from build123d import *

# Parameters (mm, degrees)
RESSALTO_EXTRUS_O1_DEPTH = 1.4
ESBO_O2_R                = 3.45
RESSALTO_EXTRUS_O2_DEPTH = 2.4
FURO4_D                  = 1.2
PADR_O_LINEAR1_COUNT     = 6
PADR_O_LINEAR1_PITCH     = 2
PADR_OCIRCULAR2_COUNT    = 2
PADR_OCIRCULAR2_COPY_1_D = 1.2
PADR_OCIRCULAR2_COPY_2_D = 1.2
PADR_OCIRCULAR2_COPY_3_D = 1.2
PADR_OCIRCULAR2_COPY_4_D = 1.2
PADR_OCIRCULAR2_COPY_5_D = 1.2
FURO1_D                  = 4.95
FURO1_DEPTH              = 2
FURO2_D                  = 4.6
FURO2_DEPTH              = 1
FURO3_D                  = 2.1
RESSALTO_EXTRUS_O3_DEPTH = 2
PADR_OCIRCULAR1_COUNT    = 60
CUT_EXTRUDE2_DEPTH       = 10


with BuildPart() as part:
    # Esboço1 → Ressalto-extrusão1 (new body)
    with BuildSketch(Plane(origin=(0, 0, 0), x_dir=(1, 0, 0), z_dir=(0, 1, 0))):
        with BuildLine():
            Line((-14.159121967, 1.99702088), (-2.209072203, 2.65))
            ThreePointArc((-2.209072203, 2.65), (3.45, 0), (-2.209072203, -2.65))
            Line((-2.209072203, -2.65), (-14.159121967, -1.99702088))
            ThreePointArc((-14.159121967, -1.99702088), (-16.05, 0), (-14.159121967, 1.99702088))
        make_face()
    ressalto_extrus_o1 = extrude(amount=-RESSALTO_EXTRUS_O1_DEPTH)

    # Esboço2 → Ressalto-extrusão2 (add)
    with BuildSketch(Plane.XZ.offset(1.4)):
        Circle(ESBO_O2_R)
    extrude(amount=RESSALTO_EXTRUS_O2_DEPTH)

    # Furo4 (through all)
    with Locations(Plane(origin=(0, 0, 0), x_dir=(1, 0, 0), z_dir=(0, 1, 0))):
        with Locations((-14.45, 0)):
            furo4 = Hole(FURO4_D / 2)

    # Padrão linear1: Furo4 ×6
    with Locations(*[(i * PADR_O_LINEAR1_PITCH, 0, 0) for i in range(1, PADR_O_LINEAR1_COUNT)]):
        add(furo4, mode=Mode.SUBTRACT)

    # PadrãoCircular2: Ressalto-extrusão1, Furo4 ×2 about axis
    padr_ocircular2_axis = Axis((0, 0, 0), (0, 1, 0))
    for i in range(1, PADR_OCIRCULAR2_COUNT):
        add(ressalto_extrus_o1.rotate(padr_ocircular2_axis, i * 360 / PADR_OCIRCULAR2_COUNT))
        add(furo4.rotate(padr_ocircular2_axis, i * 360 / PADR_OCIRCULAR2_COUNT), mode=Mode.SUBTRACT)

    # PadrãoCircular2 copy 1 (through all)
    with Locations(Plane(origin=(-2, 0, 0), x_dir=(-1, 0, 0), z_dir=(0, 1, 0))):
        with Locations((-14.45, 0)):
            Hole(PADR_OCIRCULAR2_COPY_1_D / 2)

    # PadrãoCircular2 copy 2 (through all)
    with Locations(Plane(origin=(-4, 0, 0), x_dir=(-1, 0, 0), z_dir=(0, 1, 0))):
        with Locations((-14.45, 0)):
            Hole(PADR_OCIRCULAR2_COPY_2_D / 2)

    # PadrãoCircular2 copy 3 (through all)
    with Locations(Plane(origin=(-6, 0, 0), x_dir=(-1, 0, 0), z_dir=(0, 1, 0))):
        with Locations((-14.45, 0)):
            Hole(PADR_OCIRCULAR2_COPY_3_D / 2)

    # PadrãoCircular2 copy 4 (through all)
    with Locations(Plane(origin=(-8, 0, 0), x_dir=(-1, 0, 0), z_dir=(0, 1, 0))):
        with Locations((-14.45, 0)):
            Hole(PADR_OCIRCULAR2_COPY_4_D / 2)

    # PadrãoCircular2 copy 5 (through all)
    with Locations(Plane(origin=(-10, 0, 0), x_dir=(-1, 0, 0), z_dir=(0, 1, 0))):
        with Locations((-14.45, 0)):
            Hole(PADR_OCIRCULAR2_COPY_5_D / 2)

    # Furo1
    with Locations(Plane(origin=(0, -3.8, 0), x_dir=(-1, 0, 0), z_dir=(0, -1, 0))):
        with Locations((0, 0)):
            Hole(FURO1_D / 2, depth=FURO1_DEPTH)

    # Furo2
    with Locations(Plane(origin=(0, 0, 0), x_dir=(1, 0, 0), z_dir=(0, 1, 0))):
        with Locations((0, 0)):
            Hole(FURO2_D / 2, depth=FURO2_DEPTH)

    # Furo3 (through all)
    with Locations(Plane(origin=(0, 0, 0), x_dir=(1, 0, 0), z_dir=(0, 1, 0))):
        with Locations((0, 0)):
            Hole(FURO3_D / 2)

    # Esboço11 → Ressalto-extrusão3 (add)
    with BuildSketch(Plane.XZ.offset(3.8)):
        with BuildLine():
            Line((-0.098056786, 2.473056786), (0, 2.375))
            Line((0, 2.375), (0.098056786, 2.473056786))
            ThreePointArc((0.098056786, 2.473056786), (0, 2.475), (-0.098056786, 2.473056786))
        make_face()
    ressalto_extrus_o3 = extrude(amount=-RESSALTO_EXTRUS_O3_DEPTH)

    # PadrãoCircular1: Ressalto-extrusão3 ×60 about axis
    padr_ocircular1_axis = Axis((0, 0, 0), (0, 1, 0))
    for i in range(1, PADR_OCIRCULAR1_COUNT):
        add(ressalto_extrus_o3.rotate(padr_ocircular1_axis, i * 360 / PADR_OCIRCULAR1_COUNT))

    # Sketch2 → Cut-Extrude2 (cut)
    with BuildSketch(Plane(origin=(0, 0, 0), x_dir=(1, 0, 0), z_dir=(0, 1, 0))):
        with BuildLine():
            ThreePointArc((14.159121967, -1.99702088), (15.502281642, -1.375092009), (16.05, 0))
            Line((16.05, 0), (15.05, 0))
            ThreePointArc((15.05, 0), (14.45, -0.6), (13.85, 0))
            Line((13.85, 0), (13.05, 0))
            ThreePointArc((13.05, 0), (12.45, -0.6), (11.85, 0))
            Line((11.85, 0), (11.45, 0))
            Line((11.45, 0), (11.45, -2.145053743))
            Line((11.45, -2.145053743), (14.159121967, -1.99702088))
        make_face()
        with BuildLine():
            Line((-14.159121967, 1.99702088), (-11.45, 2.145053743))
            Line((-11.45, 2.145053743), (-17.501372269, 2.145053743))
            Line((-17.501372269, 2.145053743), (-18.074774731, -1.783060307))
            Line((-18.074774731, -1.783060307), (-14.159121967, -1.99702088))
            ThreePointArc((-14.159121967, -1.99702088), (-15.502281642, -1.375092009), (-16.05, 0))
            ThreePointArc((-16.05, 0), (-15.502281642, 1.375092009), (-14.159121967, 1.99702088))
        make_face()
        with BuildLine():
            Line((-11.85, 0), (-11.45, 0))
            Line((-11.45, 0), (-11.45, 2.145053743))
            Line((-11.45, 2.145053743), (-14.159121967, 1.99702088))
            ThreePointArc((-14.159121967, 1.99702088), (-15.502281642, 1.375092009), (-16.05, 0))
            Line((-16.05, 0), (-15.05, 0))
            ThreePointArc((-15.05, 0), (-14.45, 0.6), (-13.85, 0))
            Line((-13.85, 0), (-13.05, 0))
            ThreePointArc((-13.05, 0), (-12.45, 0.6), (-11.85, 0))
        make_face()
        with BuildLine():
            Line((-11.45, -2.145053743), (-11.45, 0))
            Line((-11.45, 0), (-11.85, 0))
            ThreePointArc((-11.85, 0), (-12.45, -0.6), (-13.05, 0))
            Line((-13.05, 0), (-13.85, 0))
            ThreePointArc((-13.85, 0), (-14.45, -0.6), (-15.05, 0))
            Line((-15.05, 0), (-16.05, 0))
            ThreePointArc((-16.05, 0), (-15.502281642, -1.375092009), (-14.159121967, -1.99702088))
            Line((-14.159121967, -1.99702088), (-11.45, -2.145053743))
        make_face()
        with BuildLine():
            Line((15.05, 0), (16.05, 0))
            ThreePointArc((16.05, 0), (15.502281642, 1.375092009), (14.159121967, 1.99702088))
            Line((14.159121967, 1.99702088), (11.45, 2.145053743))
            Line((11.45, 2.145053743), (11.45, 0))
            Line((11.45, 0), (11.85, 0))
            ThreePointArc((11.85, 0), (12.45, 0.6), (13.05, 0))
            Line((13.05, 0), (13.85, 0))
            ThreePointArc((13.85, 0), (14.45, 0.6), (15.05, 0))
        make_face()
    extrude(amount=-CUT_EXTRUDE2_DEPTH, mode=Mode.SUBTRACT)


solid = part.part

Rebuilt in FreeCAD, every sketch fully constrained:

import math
import FreeCAD as App
import Part
import Sketcher
from FreeCAD import Vector


def add_polygon(sketch, points):
    """Adds a closed chain of lines whose ends are joined by coincident constraints."""
    first, n = sketch.GeometryCount, len(points)
    for a, b in zip(points, points[1:] + points[:1]):
        sketch.addGeometry(Part.LineSegment(App.Vector(*a, 0), App.Vector(*b, 0)), False)
    for i in range(n):
        sketch.addConstraint(Sketcher.Constraint("Coincident", first + i, 2, first + (i + 1) % n, 1))

doc = App.newDocument("Part")
body = doc.addObject("PartDesign::Body", "Body")

sketch1 = body.newObject("Sketcher::SketchObject", "Sketch")
sketch1.AttachmentSupport = (doc.getObject("XZ_Plane"), [""])
sketch1.MapMode = "FlatFace"
sketch1.addGeometry([
    Part.LineSegment(Vector(-2.209072, -2.65, 0), Vector(-14.159122, -1.997021, 0)),
    Part.ArcOfCircle(Part.Circle(Vector(-14.05, 0, 0), Vector(0, 0, 1), 2), math.radians(93.127667), math.radians(266.872333)),
    Part.LineSegment(Vector(-14.159122, 1.997021, 0), Vector(-2.209072, 2.65, 0)),
    Part.ArcOfCircle(Part.Circle(Vector(0, 0, 0), Vector(0, 0, 1), 3.45), math.radians(-129.814998), math.radians(129.814998)),
], False)
sketch1.addConstraint([
    Sketcher.Constraint("Tangent", 0, 2, 1, 2),
    Sketcher.Constraint("Tangent", 1, 1, 2, 1),
    Sketcher.Constraint("Coincident", 2, 2, 3, 2),
    Sketcher.Constraint("Coincident", 3, 1, 0, 1),
    Sketcher.Constraint("Coincident", 3, 3, -1, 1),
    Sketcher.Constraint("Symmetric", 0, 2, 1, 1, -1),
    Sketcher.Constraint("Radius", 1, 2.0),
    Sketcher.Constraint("Radius", 3, 3.45),
    Sketcher.Constraint("DistanceY", 3, 1, 2, 2, 5.3),
    Sketcher.Constraint("DistanceX", 1, 3, -1, 1, 14.05),
])
pad1 = body.newObject("PartDesign::Pad", "Pad")
pad1.Profile = sketch1
pad1.Length = 1.4

sketch2 = body.newObject("Sketcher::SketchObject", "Sketch001")
sketch2.AttachmentSupport = (doc.getObject("XZ_Plane"), [""])
sketch2.MapMode = "FlatFace"
sketch2.AttachmentOffset = App.Placement(Vector(0, 0, 1.4), App.Rotation())
sketch2.addGeometry(Part.Circle(Vector(0, 0, 0), Vector(0, 0, 1), 3.45), False)
sketch2.addConstraint([
    Sketcher.Constraint("Coincident", 0, 3, -1, 1),
    Sketcher.Constraint("Diameter", 0, 6.9),
])
pad2 = body.newObject("PartDesign::Pad", "Pad001")
pad2.Profile = sketch2
pad2.Length = 2.4

sketch3 = body.newObject("Sketcher::SketchObject", "Sketch002")
sketch3.AttachmentSupport = (doc.getObject("XZ_Plane"), [""])
sketch3.MapMode = "FlatFace"
sketch3.addGeometry(Part.Circle(Vector(-14.45, 0, 0), Vector(0, 0, 1), 0.6), False)
sketch3.addConstraint([
    Sketcher.Constraint("PointOnObject", 0, 3, -1),
    Sketcher.Constraint("Diameter", 0, 1.2),
    Sketcher.Constraint("DistanceX", 0, 3, -1, 1, 14.45),
])
doc.recompute()
hole = body.newObject("PartDesign::Hole", "Hole")
hole.Profile = sketch3
hole.ThreadType = "None"
hole.Diameter = 1.2
hole.DepthType = "ThroughAll"
hole.Reversed = True
doc.recompute()

linearpattern = body.newObject("PartDesign::LinearPattern", "LinearPattern")
linearpattern.Originals = [hole]
linearpattern.Direction = (doc.getObject("X_Axis"), [""])
linearpattern.Mode = "offset"
linearpattern.Offset = 2
linearpattern.Occurrences = 6
body.Tip = linearpattern
doc.recompute()

polarpattern = body.newObject("PartDesign::PolarPattern", "PolarPattern")
polarpattern.Originals = [pad1, hole]
polarpattern.Axis = (doc.getObject("Y_Axis"), [""])
polarpattern.Angle = 360
polarpattern.Occurrences = 2
body.Tip = polarpattern

sketch4 = body.newObject("Sketcher::SketchObject", "Sketch003")
sketch4.AttachmentSupport = (doc.getObject("XZ_Plane"), [""])
sketch4.MapMode = "FlatFace"
sketch4.addGeometry(Part.Circle(Vector(12.45, 0, 0), Vector(0, 0, 1), 0.6), False)
sketch4.addConstraint([
    Sketcher.Constraint("PointOnObject", 0, 3, -1),
    Sketcher.Constraint("Diameter", 0, 1.2),
    Sketcher.Constraint("DistanceX", -1, 1, 0, 3, 12.45),
])
doc.recompute()
hole2 = body.newObject("PartDesign::Hole", "Hole001")
hole2.Profile = sketch4
hole2.ThreadType = "None"
hole2.Diameter = 1.2
hole2.DepthType = "ThroughAll"
hole2.Reversed = True

sketch5 = body.newObject("Sketcher::SketchObject", "Sketch004")
sketch5.AttachmentSupport = (doc.getObject("XZ_Plane"), [""])
sketch5.MapMode = "FlatFace"
sketch5.addGeometry(Part.Circle(Vector(10.45, 0, 0), Vector(0, 0, 1), 0.6), False)
sketch5.addConstraint([
    Sketcher.Constraint("PointOnObject", 0, 3, -1),
    Sketcher.Constraint("Diameter", 0, 1.2),
    Sketcher.Constraint("DistanceX", -1, 1, 0, 3, 10.45),
])
doc.recompute()
hole3 = body.newObject("PartDesign::Hole", "Hole002")
hole3.Profile = sketch5
hole3.ThreadType = "None"
hole3.Diameter = 1.2
hole3.DepthType = "ThroughAll"
hole3.Reversed = True

sketch6 = body.newObject("Sketcher::SketchObject", "Sketch005")
sketch6.AttachmentSupport = (doc.getObject("XZ_Plane"), [""])
sketch6.MapMode = "FlatFace"
sketch6.addGeometry(Part.Circle(Vector(8.45, 0, 0), Vector(0, 0, 1), 0.6), False)
sketch6.addConstraint([
    Sketcher.Constraint("PointOnObject", 0, 3, -1),
    Sketcher.Constraint("Diameter", 0, 1.2),
    Sketcher.Constraint("DistanceX", -1, 1, 0, 3, 8.45),
])
doc.recompute()
hole4 = body.newObject("PartDesign::Hole", "Hole003")
hole4.Profile = sketch6
hole4.ThreadType = "None"
hole4.Diameter = 1.2
hole4.DepthType = "ThroughAll"
hole4.Reversed = True

sketch7 = body.newObject("Sketcher::SketchObject", "Sketch006")
sketch7.AttachmentSupport = (doc.getObject("XZ_Plane"), [""])
sketch7.MapMode = "FlatFace"
sketch7.addGeometry(Part.Circle(Vector(6.45, 0, 0), Vector(0, 0, 1), 0.6), False)
sketch7.addConstraint([
    Sketcher.Constraint("PointOnObject", 0, 3, -1),
    Sketcher.Constraint("Diameter", 0, 1.2),
    Sketcher.Constraint("DistanceX", -1, 1, 0, 3, 6.45),
])
doc.recompute()
hole5 = body.newObject("PartDesign::Hole", "Hole004")
hole5.Profile = sketch7
hole5.ThreadType = "None"
hole5.Diameter = 1.2
hole5.DepthType = "ThroughAll"
hole5.Reversed = True

sketch8 = body.newObject("Sketcher::SketchObject", "Sketch007")
sketch8.AttachmentSupport = (doc.getObject("XZ_Plane"), [""])
sketch8.MapMode = "FlatFace"
sketch8.addGeometry(Part.Circle(Vector(4.45, 0, 0), Vector(0, 0, 1), 0.6), False)
sketch8.addConstraint([
    Sketcher.Constraint("PointOnObject", 0, 3, -1),
    Sketcher.Constraint("Diameter", 0, 1.2),
    Sketcher.Constraint("DistanceX", -1, 1, 0, 3, 4.45),
])
doc.recompute()
hole6 = body.newObject("PartDesign::Hole", "Hole005")
hole6.Profile = sketch8
hole6.ThreadType = "None"
hole6.Diameter = 1.2
hole6.DepthType = "ThroughAll"
hole6.Reversed = True

sketch9 = body.newObject("Sketcher::SketchObject", "Sketch008")
sketch9.AttachmentSupport = (doc.getObject("XZ_Plane"), [""])
sketch9.MapMode = "FlatFace"
sketch9.AttachmentOffset = App.Placement(Vector(0, 0, 3.8), App.Rotation())
sketch9.addGeometry(Part.Circle(Vector(0, 0, 0), Vector(0, 0, 1), 2.475), False)
sketch9.addConstraint([
    Sketcher.Constraint("Coincident", 0, 3, -1, 1),
    Sketcher.Constraint("Diameter", 0, 4.95),
])
doc.recompute()
hole7 = body.newObject("PartDesign::Hole", "Hole006")
hole7.Profile = sketch9
hole7.ThreadType = "None"
hole7.Diameter = 4.95
hole7.DepthType = "Dimension"
hole7.Depth = 2
hole7.DrillPoint = "Flat"

sketch10 = body.newObject("Sketcher::SketchObject", "Sketch009")
sketch10.AttachmentSupport = (doc.getObject("XZ_Plane"), [""])
sketch10.MapMode = "FlatFace"
sketch10.addGeometry(Part.Circle(Vector(0, 0, 0), Vector(0, 0, 1), 2.3), False)
sketch10.addConstraint([
    Sketcher.Constraint("Coincident", 0, 3, -1, 1),
    Sketcher.Constraint("Diameter", 0, 4.6),
])
doc.recompute()
hole8 = body.newObject("PartDesign::Hole", "Hole007")
hole8.Profile = sketch10
hole8.ThreadType = "None"
hole8.Diameter = 4.6
hole8.DepthType = "Dimension"
hole8.Depth = 1
hole8.DrillPoint = "Flat"
hole8.Reversed = True

sketch11 = body.newObject("Sketcher::SketchObject", "Sketch010")
sketch11.AttachmentSupport = (doc.getObject("XZ_Plane"), [""])
sketch11.MapMode = "FlatFace"
sketch11.addGeometry(Part.Circle(Vector(0, 0, 0), Vector(0, 0, 1), 1.05), False)
sketch11.addConstraint([
    Sketcher.Constraint("Coincident", 0, 3, -1, 1),
    Sketcher.Constraint("Diameter", 0, 2.1),
])
doc.recompute()
hole9 = body.newObject("PartDesign::Hole", "Hole008")
hole9.Profile = sketch11
hole9.ThreadType = "None"
hole9.Diameter = 2.1
hole9.DepthType = "ThroughAll"
hole9.Reversed = True

sketch12 = body.newObject("Sketcher::SketchObject", "Sketch011")
sketch12.AttachmentSupport = (doc.getObject("XZ_Plane"), [""])
sketch12.MapMode = "FlatFace"
sketch12.AttachmentOffset = App.Placement(Vector(0, 0, 3.8), App.Rotation())
sketch12.addGeometry([
    Part.LineSegment(Vector(-0.098057, 2.473057, 0), Vector(0, 2.375, 0)),
    Part.LineSegment(Vector(0, 2.375, 0), Vector(0.098057, 2.473057, 0)),
    Part.ArcOfCircle(Part.Circle(Vector(0, 0, 0), Vector(0, 0, 1), 2.475), math.radians(87.72941), math.radians(92.27059)),
], False)
sketch12.addConstraint([
    Sketcher.Constraint("Coincident", 0, 2, 1, 1),
    Sketcher.Constraint("Coincident", 1, 2, 2, 1),
    Sketcher.Constraint("Coincident", 2, 2, 0, 1),
    Sketcher.Constraint("Coincident", 2, 3, -1, 1),
    Sketcher.Constraint("PointOnObject", 0, 2, -2),
    Sketcher.Constraint("Perpendicular", 0, 1),
    Sketcher.Constraint("Horizontal", 1, 2, 2, 2),
    Sketcher.Constraint("Radius", 2, 2.475),
    Sketcher.Constraint("DistanceY", -1, 1, 0, 2, 2.375),
])
pad3 = body.newObject("PartDesign::Pad", "Pad002")
pad3.Profile = sketch12
pad3.Length = 2
pad3.Reversed = True
doc.recompute()

polarpattern2 = body.newObject("PartDesign::PolarPattern", "PolarPattern001")
polarpattern2.Originals = [pad3]
polarpattern2.Axis = (doc.getObject("Y_Axis"), [""])
polarpattern2.Angle = 360
polarpattern2.Occurrences = 60
body.Tip = polarpattern2

sketch13 = body.newObject("Sketcher::SketchObject", "Sketch012")
sketch13.AttachmentSupport = (doc.getObject("XZ_Plane"), [""])
sketch13.MapMode = "FlatFace"
sketch13.addGeometry(Part.ArcOfCircle(Part.Circle(Vector(14.05, 0, 0), Vector(0, 0, 1), 2), math.radians(0), math.radians(86.872333)), False)
sketch13.addGeometry(Part.ArcOfCircle(Part.Circle(Vector(14.05, 0, 0), Vector(0, 0, 1), 2), math.radians(-86.872333), math.radians(0)), False)
sketch13.addGeometry(Part.LineSegment(Vector(14.159122, -1.997021, 0), Vector(11.45, -2.145054, 0)), False)
sketch13.addGeometry(Part.LineSegment(Vector(11.45, -2.145054, 0), Vector(11.45, 2.145054, 0)), False)
sketch13.addGeometry(Part.LineSegment(Vector(11.45, 2.145054, 0), Vector(14.159122, 1.997021, 0)), False)
sketch13.addGeometry(Part.Circle(Vector(14.45, 0, 0), Vector(0, 0, 1), 0.6), False)
sketch13.addGeometry(Part.Circle(Vector(12.45, 0, 0), Vector(0, 0, 1), 0.6), False)
add_polygon(sketch13, [(-11.45, -2.145054), (-17.501372, -2.145054), (-18.074775, 1.78306), (-14.159122, 1.997021), (-11.45, 2.145054)])
sketch13.addGeometry(Part.Circle(Vector(-14.45, 0, 0), Vector(0, 0, 1), 0.6), False)
sketch13.addGeometry(Part.Circle(Vector(-12.45, 0, 0), Vector(0, 0, 1), 0.6), False)
sketch13.addConstraint([
    Sketcher.Constraint("Tangent", 0, 1, 1, 2),
    Sketcher.Constraint("Tangent", 1, 1, 2, 1),
    Sketcher.Constraint("Coincident", 2, 2, 3, 1),
    Sketcher.Constraint("Coincident", 3, 2, 4, 1),
    Sketcher.Constraint("Tangent", 4, 2, 0, 2),
    Sketcher.Constraint("Vertical", 3),
    Sketcher.Constraint("Horizontal", 7),
    Sketcher.Constraint("Vertical", 11),
    Sketcher.Constraint("Equal", 0, 1),
    Sketcher.Constraint("Equal", 5, 6),
    Sketcher.Constraint("Equal", 6, 12),
    Sketcher.Constraint("Equal", 12, 13),
    Sketcher.Constraint("Symmetric", 5, 3, 12, 3, -1, 1),
    Sketcher.Constraint("Symmetric", 6, 3, 13, 3, -1, 1),
    Sketcher.Constraint("Symmetric", 1, 1, 9, 2, -1, 1),
    Sketcher.Constraint("Symmetric", 2, 2, 10, 2, -1, 1),
    Sketcher.Constraint("Symmetric", 4, 2, 9, 2, -2),
    Sketcher.Constraint("PointOnObject", 5, 3, -1),
    Sketcher.Constraint("PointOnObject", 6, 3, -1),
    Sketcher.Constraint("PointOnObject", 0, 1, -1),
    Sketcher.Constraint("Parallel", 2, 9),
    Sketcher.Constraint("Horizontal", 2, 2, 7, 2),
    Sketcher.Constraint("Radius", 0, 2.0),
    Sketcher.Constraint("Diameter", 5, 1.2),
    Sketcher.Constraint("DistanceX", 6, 3, 5, 3, 2.0),
    Sketcher.Constraint("DistanceX", 2, 2, 6, 3, 1.0),
    Sketcher.Constraint("DistanceX", 0, 3, 5, 3, 0.4),
    Sketcher.Constraint("DistanceX", 12, 3, 6, 3, 26.9),
    Sketcher.Constraint("DistanceX", 7, 2, 7, 1, 6.051372),
    Sketcher.Constraint("DistanceY", 3, 1, 3, 2, 4.290107),
    Sketcher.Constraint("DistanceY", -1, 1, 8, 2, 1.78306),
])
pocket1 = body.newObject("PartDesign::Pocket", "Pocket")
pocket1.Profile = sketch13
pocket1.Length = 10
pocket1.Reversed = True

doc.recompute()
